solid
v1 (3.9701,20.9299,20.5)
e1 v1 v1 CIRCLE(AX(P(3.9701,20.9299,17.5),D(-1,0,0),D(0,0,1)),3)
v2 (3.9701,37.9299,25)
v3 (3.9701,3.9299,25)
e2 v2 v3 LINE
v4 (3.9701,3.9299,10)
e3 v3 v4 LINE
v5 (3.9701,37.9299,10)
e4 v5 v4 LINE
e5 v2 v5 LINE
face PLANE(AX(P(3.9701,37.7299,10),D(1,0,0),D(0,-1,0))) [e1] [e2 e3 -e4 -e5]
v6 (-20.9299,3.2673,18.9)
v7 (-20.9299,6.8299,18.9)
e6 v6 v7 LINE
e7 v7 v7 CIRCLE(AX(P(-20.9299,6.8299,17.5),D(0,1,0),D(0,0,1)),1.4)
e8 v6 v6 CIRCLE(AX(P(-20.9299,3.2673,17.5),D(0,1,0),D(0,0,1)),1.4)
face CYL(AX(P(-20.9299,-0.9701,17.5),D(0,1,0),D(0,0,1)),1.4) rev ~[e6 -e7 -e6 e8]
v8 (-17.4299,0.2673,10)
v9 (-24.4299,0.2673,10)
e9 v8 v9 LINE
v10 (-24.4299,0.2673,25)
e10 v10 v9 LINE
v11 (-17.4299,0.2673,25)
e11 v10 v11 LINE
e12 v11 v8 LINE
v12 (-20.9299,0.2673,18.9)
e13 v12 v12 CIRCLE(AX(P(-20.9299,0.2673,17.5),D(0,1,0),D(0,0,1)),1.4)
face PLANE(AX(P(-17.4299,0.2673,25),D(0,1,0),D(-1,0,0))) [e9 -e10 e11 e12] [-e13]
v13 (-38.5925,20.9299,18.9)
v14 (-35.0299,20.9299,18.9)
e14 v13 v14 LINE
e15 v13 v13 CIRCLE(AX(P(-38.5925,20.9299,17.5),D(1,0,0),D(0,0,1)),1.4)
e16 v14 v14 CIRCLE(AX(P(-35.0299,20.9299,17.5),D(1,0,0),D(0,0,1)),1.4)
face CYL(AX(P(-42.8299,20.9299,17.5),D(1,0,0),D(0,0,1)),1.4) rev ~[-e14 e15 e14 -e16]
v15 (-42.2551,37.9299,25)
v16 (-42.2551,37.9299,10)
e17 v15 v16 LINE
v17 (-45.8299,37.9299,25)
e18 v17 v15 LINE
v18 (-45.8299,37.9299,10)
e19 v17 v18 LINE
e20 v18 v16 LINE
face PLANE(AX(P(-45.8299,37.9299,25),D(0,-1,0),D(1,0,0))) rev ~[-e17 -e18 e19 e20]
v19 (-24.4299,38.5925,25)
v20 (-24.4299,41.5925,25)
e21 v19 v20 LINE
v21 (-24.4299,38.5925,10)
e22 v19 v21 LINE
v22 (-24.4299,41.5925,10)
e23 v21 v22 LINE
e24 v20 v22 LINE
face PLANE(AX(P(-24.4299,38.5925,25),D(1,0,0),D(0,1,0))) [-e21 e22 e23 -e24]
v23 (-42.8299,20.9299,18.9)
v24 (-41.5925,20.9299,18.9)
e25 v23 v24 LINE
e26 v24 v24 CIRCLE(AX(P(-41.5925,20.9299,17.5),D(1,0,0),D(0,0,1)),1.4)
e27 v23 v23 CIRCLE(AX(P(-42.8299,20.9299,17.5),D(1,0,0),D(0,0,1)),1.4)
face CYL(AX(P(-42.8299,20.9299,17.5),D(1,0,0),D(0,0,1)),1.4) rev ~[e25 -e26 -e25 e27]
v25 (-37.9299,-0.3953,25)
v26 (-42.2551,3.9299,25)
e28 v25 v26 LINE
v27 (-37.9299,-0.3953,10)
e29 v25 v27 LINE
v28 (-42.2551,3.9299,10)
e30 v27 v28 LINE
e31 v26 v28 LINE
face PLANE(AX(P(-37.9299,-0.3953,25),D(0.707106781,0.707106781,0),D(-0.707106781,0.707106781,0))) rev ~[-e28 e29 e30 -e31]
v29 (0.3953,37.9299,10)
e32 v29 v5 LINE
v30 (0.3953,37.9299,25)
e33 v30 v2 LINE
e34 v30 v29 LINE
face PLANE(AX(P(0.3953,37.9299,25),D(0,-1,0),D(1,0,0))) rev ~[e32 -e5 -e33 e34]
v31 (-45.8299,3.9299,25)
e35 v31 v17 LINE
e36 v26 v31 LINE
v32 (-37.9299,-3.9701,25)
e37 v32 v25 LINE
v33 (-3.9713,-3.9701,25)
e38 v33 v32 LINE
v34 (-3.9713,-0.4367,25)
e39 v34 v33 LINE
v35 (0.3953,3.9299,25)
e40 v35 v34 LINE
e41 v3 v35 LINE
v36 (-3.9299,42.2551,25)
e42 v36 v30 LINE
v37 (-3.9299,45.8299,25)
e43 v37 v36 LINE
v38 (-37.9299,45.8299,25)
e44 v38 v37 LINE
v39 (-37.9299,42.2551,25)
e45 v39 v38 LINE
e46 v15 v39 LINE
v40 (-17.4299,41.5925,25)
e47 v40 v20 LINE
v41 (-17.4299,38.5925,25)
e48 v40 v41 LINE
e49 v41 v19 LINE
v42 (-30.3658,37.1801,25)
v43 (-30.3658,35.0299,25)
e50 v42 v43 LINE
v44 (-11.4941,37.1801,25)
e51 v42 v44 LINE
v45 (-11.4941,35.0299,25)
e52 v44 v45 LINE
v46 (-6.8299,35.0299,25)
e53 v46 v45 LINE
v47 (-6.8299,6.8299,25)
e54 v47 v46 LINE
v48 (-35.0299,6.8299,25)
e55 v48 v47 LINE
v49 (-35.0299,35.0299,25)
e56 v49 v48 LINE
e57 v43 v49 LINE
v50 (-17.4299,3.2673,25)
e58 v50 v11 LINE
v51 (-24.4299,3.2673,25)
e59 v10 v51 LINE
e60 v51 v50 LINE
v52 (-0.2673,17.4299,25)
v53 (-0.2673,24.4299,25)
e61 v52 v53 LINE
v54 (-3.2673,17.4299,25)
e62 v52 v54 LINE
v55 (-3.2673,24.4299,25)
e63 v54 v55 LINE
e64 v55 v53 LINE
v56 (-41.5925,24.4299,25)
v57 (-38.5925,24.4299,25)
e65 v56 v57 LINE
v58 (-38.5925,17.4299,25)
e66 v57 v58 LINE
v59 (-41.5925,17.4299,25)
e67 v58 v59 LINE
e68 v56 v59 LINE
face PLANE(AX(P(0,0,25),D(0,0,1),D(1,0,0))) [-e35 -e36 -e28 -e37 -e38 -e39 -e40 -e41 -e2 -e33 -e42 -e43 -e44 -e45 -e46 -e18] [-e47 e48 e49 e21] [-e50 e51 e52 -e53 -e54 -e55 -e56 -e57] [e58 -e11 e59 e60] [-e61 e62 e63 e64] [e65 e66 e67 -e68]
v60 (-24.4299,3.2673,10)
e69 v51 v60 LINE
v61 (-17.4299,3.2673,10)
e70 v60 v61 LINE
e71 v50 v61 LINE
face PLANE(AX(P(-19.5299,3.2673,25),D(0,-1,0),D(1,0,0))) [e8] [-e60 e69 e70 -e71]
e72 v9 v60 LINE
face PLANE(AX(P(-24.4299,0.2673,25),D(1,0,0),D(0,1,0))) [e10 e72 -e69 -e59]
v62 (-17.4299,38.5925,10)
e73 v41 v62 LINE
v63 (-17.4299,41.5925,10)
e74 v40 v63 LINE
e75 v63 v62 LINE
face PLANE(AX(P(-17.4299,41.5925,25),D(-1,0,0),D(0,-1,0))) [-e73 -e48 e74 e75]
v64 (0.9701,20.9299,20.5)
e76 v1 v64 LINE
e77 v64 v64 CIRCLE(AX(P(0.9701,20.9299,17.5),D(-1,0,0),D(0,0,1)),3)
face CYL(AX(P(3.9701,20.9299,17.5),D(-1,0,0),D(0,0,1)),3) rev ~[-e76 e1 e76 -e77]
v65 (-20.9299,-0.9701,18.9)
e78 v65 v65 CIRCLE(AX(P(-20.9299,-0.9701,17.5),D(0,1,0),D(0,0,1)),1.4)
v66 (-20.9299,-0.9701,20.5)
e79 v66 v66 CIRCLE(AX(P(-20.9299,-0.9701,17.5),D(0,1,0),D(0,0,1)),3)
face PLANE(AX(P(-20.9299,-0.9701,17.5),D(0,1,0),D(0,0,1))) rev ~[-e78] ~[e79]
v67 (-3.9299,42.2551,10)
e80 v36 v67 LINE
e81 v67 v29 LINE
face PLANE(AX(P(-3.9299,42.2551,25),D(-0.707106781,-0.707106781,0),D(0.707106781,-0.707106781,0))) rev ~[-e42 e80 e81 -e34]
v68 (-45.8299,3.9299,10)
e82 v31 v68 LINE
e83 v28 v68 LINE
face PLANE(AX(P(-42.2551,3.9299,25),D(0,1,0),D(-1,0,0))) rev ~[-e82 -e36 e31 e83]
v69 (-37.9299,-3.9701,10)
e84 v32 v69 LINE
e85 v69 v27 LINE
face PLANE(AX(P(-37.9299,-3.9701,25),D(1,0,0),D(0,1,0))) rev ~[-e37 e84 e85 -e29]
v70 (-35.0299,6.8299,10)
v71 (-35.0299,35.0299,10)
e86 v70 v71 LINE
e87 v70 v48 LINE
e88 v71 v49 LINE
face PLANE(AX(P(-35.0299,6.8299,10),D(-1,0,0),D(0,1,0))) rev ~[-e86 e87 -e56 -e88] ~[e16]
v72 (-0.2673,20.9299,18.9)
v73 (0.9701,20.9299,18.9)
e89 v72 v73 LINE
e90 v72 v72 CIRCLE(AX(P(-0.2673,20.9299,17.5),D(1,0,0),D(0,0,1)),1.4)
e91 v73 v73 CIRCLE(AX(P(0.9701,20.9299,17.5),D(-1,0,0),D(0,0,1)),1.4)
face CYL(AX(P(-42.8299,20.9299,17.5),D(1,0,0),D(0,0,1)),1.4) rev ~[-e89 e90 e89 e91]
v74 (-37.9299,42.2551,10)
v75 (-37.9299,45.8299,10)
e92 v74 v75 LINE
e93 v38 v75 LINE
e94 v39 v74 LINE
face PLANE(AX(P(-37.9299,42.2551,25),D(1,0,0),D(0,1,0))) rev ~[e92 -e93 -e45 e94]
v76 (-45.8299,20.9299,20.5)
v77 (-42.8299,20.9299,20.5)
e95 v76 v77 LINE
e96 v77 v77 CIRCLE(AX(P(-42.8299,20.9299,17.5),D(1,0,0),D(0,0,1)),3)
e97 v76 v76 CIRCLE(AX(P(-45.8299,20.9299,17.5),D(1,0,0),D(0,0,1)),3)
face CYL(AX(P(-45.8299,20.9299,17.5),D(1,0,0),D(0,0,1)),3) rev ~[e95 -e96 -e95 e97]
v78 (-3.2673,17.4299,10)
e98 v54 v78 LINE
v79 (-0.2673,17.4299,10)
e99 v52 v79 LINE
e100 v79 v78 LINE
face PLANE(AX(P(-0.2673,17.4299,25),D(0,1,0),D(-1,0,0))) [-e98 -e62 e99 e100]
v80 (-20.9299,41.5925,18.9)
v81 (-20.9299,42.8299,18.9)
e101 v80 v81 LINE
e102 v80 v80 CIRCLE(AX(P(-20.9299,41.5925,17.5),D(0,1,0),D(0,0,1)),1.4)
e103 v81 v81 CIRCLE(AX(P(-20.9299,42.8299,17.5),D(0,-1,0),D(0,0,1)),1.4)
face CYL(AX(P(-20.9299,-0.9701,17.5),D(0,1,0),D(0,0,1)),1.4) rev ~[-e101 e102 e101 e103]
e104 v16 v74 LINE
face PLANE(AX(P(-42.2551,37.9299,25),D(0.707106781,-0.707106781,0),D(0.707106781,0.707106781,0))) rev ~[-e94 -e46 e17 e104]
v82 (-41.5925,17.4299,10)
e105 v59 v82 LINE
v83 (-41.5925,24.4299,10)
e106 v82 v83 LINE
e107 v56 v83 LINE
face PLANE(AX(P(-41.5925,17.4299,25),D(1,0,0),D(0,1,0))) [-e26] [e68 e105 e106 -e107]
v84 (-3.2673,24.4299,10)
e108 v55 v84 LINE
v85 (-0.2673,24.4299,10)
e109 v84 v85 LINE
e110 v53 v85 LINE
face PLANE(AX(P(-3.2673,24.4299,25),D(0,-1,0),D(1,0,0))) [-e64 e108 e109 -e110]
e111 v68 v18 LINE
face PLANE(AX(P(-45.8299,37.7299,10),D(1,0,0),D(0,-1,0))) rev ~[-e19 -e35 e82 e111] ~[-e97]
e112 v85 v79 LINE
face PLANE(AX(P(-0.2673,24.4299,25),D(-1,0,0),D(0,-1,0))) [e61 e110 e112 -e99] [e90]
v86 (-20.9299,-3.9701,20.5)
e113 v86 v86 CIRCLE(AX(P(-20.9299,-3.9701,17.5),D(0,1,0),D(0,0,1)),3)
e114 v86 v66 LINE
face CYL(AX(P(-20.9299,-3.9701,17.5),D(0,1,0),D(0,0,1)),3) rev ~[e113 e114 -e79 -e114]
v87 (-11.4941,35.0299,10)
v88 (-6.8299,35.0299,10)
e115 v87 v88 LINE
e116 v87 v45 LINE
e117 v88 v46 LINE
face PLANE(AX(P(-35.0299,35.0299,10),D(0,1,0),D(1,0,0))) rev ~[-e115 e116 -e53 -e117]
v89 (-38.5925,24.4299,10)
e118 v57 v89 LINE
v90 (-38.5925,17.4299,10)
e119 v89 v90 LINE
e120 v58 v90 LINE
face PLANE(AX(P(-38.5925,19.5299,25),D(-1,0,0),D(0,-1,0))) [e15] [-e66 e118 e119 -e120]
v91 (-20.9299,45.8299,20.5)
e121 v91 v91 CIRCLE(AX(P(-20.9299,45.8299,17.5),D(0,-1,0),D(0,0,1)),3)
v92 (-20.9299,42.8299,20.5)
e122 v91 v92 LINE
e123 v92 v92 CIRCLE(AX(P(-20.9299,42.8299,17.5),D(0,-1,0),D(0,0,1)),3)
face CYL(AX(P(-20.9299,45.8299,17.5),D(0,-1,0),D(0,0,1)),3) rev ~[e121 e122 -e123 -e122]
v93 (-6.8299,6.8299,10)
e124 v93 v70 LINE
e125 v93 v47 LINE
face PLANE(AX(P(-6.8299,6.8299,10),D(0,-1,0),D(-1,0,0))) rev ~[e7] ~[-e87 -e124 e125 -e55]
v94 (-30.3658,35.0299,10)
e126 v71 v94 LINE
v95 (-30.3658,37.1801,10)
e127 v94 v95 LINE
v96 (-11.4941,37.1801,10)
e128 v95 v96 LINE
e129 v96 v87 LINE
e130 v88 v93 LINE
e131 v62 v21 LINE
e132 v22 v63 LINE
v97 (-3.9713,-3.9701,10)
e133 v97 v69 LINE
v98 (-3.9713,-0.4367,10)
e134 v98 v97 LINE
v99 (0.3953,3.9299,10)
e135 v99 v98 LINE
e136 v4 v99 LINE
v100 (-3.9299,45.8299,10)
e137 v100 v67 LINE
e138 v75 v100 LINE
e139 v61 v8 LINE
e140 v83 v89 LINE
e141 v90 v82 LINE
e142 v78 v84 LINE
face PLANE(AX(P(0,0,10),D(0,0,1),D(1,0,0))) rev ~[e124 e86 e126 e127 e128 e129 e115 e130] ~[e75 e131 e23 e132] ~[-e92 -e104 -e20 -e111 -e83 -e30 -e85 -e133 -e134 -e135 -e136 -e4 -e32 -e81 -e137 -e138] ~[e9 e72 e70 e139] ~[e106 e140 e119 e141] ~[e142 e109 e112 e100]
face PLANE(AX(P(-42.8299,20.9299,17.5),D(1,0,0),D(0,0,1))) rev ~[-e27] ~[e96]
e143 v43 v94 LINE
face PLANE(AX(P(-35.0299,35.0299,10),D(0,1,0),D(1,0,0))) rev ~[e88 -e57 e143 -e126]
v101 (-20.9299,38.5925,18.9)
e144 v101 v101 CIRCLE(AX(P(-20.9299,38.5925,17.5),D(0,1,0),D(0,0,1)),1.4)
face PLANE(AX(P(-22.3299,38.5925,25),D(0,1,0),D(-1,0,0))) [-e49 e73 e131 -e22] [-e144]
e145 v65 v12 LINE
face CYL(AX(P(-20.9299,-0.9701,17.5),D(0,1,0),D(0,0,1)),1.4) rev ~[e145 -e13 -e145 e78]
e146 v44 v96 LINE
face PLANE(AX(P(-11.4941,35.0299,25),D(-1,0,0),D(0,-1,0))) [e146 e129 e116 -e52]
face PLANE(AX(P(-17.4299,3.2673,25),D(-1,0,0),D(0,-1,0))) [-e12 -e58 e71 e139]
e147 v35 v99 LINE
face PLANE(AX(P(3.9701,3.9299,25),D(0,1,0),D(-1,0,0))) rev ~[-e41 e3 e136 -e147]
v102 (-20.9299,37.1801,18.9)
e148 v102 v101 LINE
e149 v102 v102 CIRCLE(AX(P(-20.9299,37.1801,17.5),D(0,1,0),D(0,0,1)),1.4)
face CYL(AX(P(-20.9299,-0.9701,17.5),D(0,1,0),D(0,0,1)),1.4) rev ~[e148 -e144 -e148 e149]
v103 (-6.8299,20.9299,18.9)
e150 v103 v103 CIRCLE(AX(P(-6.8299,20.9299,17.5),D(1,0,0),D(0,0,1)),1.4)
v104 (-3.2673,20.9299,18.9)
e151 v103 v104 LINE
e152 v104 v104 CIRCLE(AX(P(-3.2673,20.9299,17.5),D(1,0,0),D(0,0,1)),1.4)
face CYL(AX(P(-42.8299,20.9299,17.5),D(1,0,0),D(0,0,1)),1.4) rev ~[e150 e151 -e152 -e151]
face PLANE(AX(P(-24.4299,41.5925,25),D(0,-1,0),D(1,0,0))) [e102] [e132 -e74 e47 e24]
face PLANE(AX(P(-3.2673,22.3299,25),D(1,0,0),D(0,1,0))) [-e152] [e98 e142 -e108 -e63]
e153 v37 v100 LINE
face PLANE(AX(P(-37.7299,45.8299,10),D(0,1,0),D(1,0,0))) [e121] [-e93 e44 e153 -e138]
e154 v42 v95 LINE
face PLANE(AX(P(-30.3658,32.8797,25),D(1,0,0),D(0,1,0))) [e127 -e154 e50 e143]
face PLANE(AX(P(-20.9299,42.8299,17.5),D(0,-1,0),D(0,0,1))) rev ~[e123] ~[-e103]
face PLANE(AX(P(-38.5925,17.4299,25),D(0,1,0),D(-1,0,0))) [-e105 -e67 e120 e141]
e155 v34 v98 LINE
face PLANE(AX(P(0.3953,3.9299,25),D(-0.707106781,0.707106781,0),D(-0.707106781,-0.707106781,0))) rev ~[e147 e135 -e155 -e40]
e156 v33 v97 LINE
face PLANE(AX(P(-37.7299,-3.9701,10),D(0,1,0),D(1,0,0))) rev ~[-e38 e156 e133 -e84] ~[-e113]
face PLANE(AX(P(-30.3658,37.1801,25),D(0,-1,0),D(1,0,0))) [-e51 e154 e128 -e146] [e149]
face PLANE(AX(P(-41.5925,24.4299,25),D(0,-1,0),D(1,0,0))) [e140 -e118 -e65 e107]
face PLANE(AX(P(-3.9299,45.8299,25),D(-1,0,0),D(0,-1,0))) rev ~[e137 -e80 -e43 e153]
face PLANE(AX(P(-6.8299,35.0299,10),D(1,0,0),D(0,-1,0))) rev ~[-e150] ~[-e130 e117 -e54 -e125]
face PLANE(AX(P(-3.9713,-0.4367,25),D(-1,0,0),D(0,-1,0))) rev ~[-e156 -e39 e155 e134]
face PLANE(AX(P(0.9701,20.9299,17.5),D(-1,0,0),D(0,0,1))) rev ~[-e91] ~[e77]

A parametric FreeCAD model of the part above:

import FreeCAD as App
import Part
import Sketcher
from FreeCAD import Vector

doc = App.newDocument("Part")
body = doc.addObject("PartDesign::Body", "Body")

sketch1 = body.newObject("Sketcher::SketchObject", "Sketch")
sketch1.AttachmentSupport = (doc.getObject("XY_Plane"), [""])
sketch1.MapMode = "FlatFace"
sketch1.AttachmentOffset = App.Placement(Vector(0, 0, 10), App.Rotation())
sketch1.addGeometry(Part.LineSegment(Vector(-4.171, -0.354, 0), Vector(0.312, 4.13, 0)), False)
sketch1.addGeometry(Part.LineSegment(Vector(0.312, 4.13, 0), Vector(3.97, 4.13, 0)), False)
sketch1.addGeometry(Part.LineSegment(Vector(3.97, 4.13, 0), Vector(3.97, 37.73, 0)), False)
sketch1.addGeometry(Part.LineSegment(Vector(3.97, 37.73, 0), Vector(0.312, 37.73, 0)), False)
sketch1.addGeometry(Part.LineSegment(Vector(0.312, 37.73, 0), Vector(-4.13, 42.172, 0)), False)
sketch1.addGeometry(Part.LineSegment(Vector(-4.13, 42.172, 0), Vector(-4.13, 45.83, 0)), False)
sketch1.addGeometry(Part.LineSegment(Vector(-4.13, 45.83, 0), Vector(-37.73, 45.83, 0)), False)
sketch1.addGeometry(Part.LineSegment(Vector(-37.73, 45.83, 0), Vector(-37.73, 42.172, 0)), False)
sketch1.addGeometry(Part.LineSegment(Vector(-37.73, 42.172, 0), Vector(-42.172, 37.73, 0)), False)
sketch1.addGeometry(Part.LineSegment(Vector(-42.172, 37.73, 0), Vector(-45.83, 37.73, 0)), False)
sketch1.addGeometry(Part.LineSegment(Vector(-45.83, 37.73, 0), Vector(-45.83, 4.13, 0)), False)
sketch1.addGeometry(Part.LineSegment(Vector(-45.83, 4.13, 0), Vector(-42.172, 4.13, 0)), False)
sketch1.addGeometry(Part.LineSegment(Vector(-42.172, 4.13, 0), Vector(-37.689, -0.354, 0)), False)
sketch1.addGeometry(Part.LineSegment(Vector(-37.689, -0.354, 0), Vector(-37.73, -0.354, 0)), False)
sketch1.addGeometry(Part.LineSegment(Vector(-37.73, -0.354, 0), Vector(-37.73, -3.97, 0)), False)
sketch1.addGeometry(Part.LineSegment(Vector(-37.73, -3.97, 0), Vector(-4.171, -3.97, 0)), False)
sketch1.addGeometry(Part.LineSegment(Vector(-4.171, -3.97, 0), Vector(-4.171, -0.354, 0)), False)
sketch1.addConstraint(Sketcher.Constraint("Coincident", 0, 2, 1, 1))
sketch1.addConstraint(Sketcher.Constraint("Coincident", 1, 2, 2, 1))
sketch1.addConstraint(Sketcher.Constraint("Coincident", 2, 2, 3, 1))
sketch1.addConstraint(Sketcher.Constraint("Coincident", 3, 2, 4, 1))
sketch1.addConstraint(Sketcher.Constraint("Coincident", 4, 2, 5, 1))
sketch1.addConstraint(Sketcher.Constraint("Coincident", 5, 2, 6, 1))
sketch1.addConstraint(Sketcher.Constraint("Coincident", 6, 2, 7, 1))
sketch1.addConstraint(Sketcher.Constraint("Coincident", 7, 2, 8, 1))
sketch1.addConstraint(Sketcher.Constraint("Coincident", 8, 2, 9, 1))
sketch1.addConstraint(Sketcher.Constraint("Coincident", 9, 2, 10, 1))
sketch1.addConstraint(Sketcher.Constraint("Coincident", 10, 2, 11, 1))
sketch1.addConstraint(Sketcher.Constraint("Coincident", 11, 2, 12, 1))
sketch1.addConstraint(Sketcher.Constraint("Coincident", 12, 2, 13, 1))
sketch1.addConstraint(Sketcher.Constraint("Coincident", 13, 2, 14, 1))
sketch1.addConstraint(Sketcher.Constraint("Coincident", 14, 2, 15, 1))
sketch1.addConstraint(Sketcher.Constraint("Coincident", 15, 2, 16, 1))
sketch1.addConstraint(Sketcher.Constraint("Coincident", 16, 2, 0, 1))
sketch1.addConstraint(Sketcher.Constraint("Horizontal", 1))
sketch1.addConstraint(Sketcher.Constraint("Vertical", 2))
sketch1.addConstraint(Sketcher.Constraint("Horizontal", 3))
sketch1.addConstraint(Sketcher.Constraint("Vertical", 5))
sketch1.addConstraint(Sketcher.Constraint("Horizontal", 6))
sketch1.addConstraint(Sketcher.Constraint("Vertical", 7))
sketch1.addConstraint(Sketcher.Constraint("Horizontal", 9))
sketch1.addConstraint(Sketcher.Constraint("Vertical", 10))
sketch1.addConstraint(Sketcher.Constraint("Horizontal", 11))
sketch1.addConstraint(Sketcher.Constraint("Horizontal", 13))
sketch1.addConstraint(Sketcher.Constraint("Vertical", 14))
sketch1.addConstraint(Sketcher.Constraint("Horizontal", 15))
sketch1.addConstraint(Sketcher.Constraint("Vertical", 16))
sketch1.addConstraint(Sketcher.Constraint("Perpendicular", 0, 4))
sketch1.addConstraint(Sketcher.Constraint("Perpendicular", 4, 8))
sketch1.addConstraint(Sketcher.Constraint("Perpendicular", 8, 12))
sketch1.addConstraint(Sketcher.Constraint("Horizontal", 4, 2, 7, 2))
sketch1.addConstraint(Sketcher.Constraint("Horizontal", 3, 2, 8, 2))
sketch1.addConstraint(Sketcher.Constraint("Horizontal", 1, 2, 10, 2))
sketch1.addConstraint(Sketcher.Constraint("Horizontal", 13, 2, 16, 2))
sketch1.addConstraint(Sketcher.Constraint("Vertical", 0, 2, 3, 2))
sketch1.addConstraint(Sketcher.Constraint("Vertical", 8, 2, 11, 2))
sketch1.addConstraint(Sketcher.Constraint("Vertical", 7, 2, 13, 2))
sketch1.addConstraint(Sketcher.Constraint("Equal", 3, 9))
sketch1.addConstraint(Sketcher.Constraint("Equal", 6, 2))
sketch1.addConstraint(Sketcher.Constraint("Equal", 11, 5))
sketch1.addConstraint(Sketcher.Constraint("Equal", 4, 8))
sketch1.addConstraint(Sketcher.Constraint("DistanceX", 6, 2, 6, 1, 33.6))
sketch1.addConstraint(Sketcher.Constraint("DistanceX", 4, 2, 2, 2, 8.1))
sketch1.addConstraint(Sketcher.Constraint("DistanceY", 14, 2, 11, 2, 8.1))
sketch1.addConstraint(Sketcher.Constraint("DistanceY", -1, 1, 0, 2, 4.13))
sketch1.addConstraint(Sketcher.Constraint("DistanceX", -1, 1, 1, 2, 3.97))
sketch1.addConstraint(Sketcher.Constraint("Distance", 0, 6.341))
sketch1.addConstraint(Sketcher.Constraint("DistanceX", 1, 1, 1, 2, 3.6577))
pad1 = body.newObject("PartDesign::Pad", "Pad")
pad1.Profile = sketch1
pad1.Length = 15

sketch2 = body.newObject("Sketcher::SketchObject", "Sketch001")
sketch2.AttachmentSupport = (doc.getObject("XY_Plane"), [""])
sketch2.MapMode = "FlatFace"
sketch2.AttachmentOffset = App.Placement(Vector(0, 0, 25), App.Rotation())
sketch2.addGeometry(Part.LineSegment(Vector(3.97, 3.93, 0), Vector(3.97, 4.13, 0)), False)
sketch2.addGeometry(Part.LineSegment(Vector(3.97, 4.13, 0), Vector(0.312, 4.13, 0)), False)
sketch2.addGeometry(Part.LineSegment(Vector(0.312, 4.13, 0), Vector(-4.171, -0.354, 0)), False)
sketch2.addGeometry(Part.LineSegment(Vector(-4.171, -0.354, 0), Vector(-4.171, -3.97, 0)), False)
sketch2.addGeometry(Part.LineSegment(Vector(-4.171, -3.97, 0), Vector(-3.971, -3.97, 0)), False)
sketch2.addGeometry(Part.LineSegment(Vector(-3.971, -3.97, 0), Vector(-3.971, -0.437, 0)), False)
sketch2.addGeometry(Part.LineSegment(Vector(-3.971, -0.437, 0), Vector(0.395, 3.93, 0)), False)
sketch2.addGeometry(Part.LineSegment(Vector(0.395, 3.93, 0), Vector(3.97, 3.93, 0)), False)
sketch2.addGeometry(Part.LineSegment(Vector(-3.93, 45.83, 0), Vector(-4.13, 45.83, 0)), False)
sketch2.addGeometry(Part.LineSegment(Vector(-4.13, 45.83, 0), Vector(-4.13, 42.172, 0)), False)
sketch2.addGeometry(Part.LineSegment(Vector(-4.13, 42.172, 0), Vector(0.312, 37.73, 0)), False)
sketch2.addGeometry(Part.LineSegment(Vector(0.312, 37.73, 0), Vector(3.97, 37.73, 0)), False)
sketch2.addGeometry(Part.LineSegment(Vector(3.97, 37.73, 0), Vector(3.97, 37.93, 0)), False)
sketch2.addGeometry(Part.LineSegment(Vector(3.97, 37.93, 0), Vector(0.395, 37.93, 0)), False)
sketch2.addGeometry(Part.LineSegment(Vector(0.395, 37.93, 0), Vector(-3.93, 42.255, 0)), False)
sketch2.addGeometry(Part.LineSegment(Vector(-3.93, 42.255, 0), Vector(-3.93, 45.83, 0)), False)
sketch2.addGeometry(Part.LineSegment(Vector(-42.172, 37.73, 0), Vector(-37.73, 42.172, 0)), False)
sketch2.addGeometry(Part.LineSegment(Vector(-37.73, 42.172, 0), Vector(-37.73, 45.83, 0)), False)
sketch2.addGeometry(Part.LineSegment(Vector(-37.73, 45.83, 0), Vector(-37.93, 45.83, 0)), False)
sketch2.addGeometry(Part.LineSegment(Vector(-37.93, 45.83, 0), Vector(-37.93, 42.255, 0)), False)
sketch2.addGeometry(Part.LineSegment(Vector(-37.93, 42.255, 0), Vector(-42.255, 37.93, 0)), False)
sketch2.addGeometry(Part.LineSegment(Vector(-42.255, 37.93, 0), Vector(-45.83, 37.93, 0)), False)
sketch2.addGeometry(Part.LineSegment(Vector(-45.83, 37.93, 0), Vector(-45.83, 37.73, 0)), False)
sketch2.addGeometry(Part.LineSegment(Vector(-45.83, 37.73, 0), Vector(-42.172, 37.73, 0)), False)
sketch2.addGeometry(Part.LineSegment(Vector(-42.172, 4.13, 0), Vector(-45.83, 4.13, 0)), False)
sketch2.addGeometry(Part.LineSegment(Vector(-45.83, 4.13, 0), Vector(-45.83, 3.93, 0)), False)
sketch2.addGeometry(Part.LineSegment(Vector(-45.83, 3.93, 0), Vector(-42.255, 3.93, 0)), False)
sketch2.addGeometry(Part.LineSegment(Vector(-42.255, 3.93, 0), Vector(-37.93, -0.395, 0)), False)
sketch2.addGeometry(Part.LineSegment(Vector(-37.93, -0.395, 0), Vector(-37.93, -3.97, 0)), False)
sketch2.addGeometry(Part.LineSegment(Vector(-37.93, -3.97, 0), Vector(-37.73, -3.97, 0)), False)
sketch2.addGeometry(Part.LineSegment(Vector(-37.73, -3.97, 0), Vector(-37.73, -0.354, 0)), False)
sketch2.addGeometry(Part.LineSegment(Vector(-37.73, -0.354, 0), Vector(-37.688, -0.354, 0)), False)
sketch2.addGeometry(Part.LineSegment(Vector(-37.688, -0.354, 0), Vector(-42.172, 4.13, 0)), False)
sketch2.addConstraint(Sketcher.Constraint("Coincident", 0, 2, 1, 1))
sketch2.addConstraint(Sketcher.Constraint("Coincident", 1, 2, 2, 1))
sketch2.addConstraint(Sketcher.Constraint("Coincident", 2, 2, 3, 1))
sketch2.addConstraint(Sketcher.Constraint("Coincident", 3, 2, 4, 1))
sketch2.addConstraint(Sketcher.Constraint("Coincident", 4, 2, 5, 1))
sketch2.addConstraint(Sketcher.Constraint("Coincident", 5, 2, 6, 1))
sketch2.addConstraint(Sketcher.Constraint("Coincident", 6, 2, 7, 1))
sketch2.addConstraint(Sketcher.Constraint("Coincident", 7, 2, 0, 1))
sketch2.addConstraint(Sketcher.Constraint("Coincident", 8, 2, 9, 1))
sketch2.addConstraint(Sketcher.Constraint("Coincident", 9, 2, 10, 1))
sketch2.addConstraint(Sketcher.Constraint("Coincident", 10, 2, 11, 1))
sketch2.addConstraint(Sketcher.Constraint("Coincident", 11, 2, 12, 1))
sketch2.addConstraint(Sketcher.Constraint("Coincident", 12, 2, 13, 1))
sketch2.addConstraint(Sketcher.Constraint("Coincident", 13, 2, 14, 1))
sketch2.addConstraint(Sketcher.Constraint("Coincident", 14, 2, 15, 1))
sketch2.addConstraint(Sketcher.Constraint("Coincident", 15, 2, 8, 1))
sketch2.addConstraint(Sketcher.Constraint("Coincident", 16, 2, 17, 1))
sketch2.addConstraint(Sketcher.Constraint("Coincident", 17, 2, 18, 1))
sketch2.addConstraint(Sketcher.Constraint("Coincident", 18, 2, 19, 1))
sketch2.addConstraint(Sketcher.Constraint("Coincident", 19, 2, 20, 1))
sketch2.addConstraint(Sketcher.Constraint("Coincident", 20, 2, 21, 1))
sketch2.addConstraint(Sketcher.Constraint("Coincident", 21, 2, 22, 1))
sketch2.addConstraint(Sketcher.Constraint("Coincident", 22, 2, 23, 1))
sketch2.addConstraint(Sketcher.Constraint("Coincident", 23, 2, 16, 1))
sketch2.addConstraint(Sketcher.Constraint("Coincident", 24, 2, 25, 1))
sketch2.addConstraint(Sketcher.Constraint("Coincident", 25, 2, 26, 1))
sketch2.addConstraint(Sketcher.Constraint("Coincident", 26, 2, 27, 1))
sketch2.addConstraint(Sketcher.Constraint("Coincident", 27, 2, 28, 1))
sketch2.addConstraint(Sketcher.Constraint("Coincident", 28, 2, 29, 1))
sketch2.addConstraint(Sketcher.Constraint("Coincident", 29, 2, 30, 1))
sketch2.addConstraint(Sketcher.Constraint("Coincident", 30, 2, 31, 1))
sketch2.addConstraint(Sketcher.Constraint("Coincident", 31, 2, 32, 1))
sketch2.addConstraint(Sketcher.Constraint("Coincident", 32, 2, 24, 1))
sketch2.addConstraint(Sketcher.Constraint("Vertical", 0))
sketch2.addConstraint(Sketcher.Constraint("Horizontal", 1))
sketch2.addConstraint(Sketcher.Constraint("Vertical", 3))
sketch2.addConstraint(Sketcher.Constraint("Horizontal", 4))
sketch2.addConstraint(Sketcher.Constraint("Vertical", 5))
sketch2.addConstraint(Sketcher.Constraint("Horizontal", 7))
sketch2.addConstraint(Sketcher.Constraint("Horizontal", 8))
sketch2.addConstraint(Sketcher.Constraint("Vertical", 9))
sketch2.addConstraint(Sketcher.Constraint("Horizontal", 11))
sketch2.addConstraint(Sketcher.Constraint("Vertical", 12))
sketch2.addConstraint(Sketcher.Constraint("Horizontal", 13))
sketch2.addConstraint(Sketcher.Constraint("Vertical", 15))
sketch2.addConstraint(Sketcher.Constraint("Vertical", 17))
sketch2.addConstraint(Sketcher.Constraint("Horizontal", 18))
sketch2.addConstraint(Sketcher.Constraint("Vertical", 19))
sketch2.addConstraint(Sketcher.Constraint("Horizontal", 21))
sketch2.addConstraint(Sketcher.Constraint("Vertical", 22))
sketch2.addConstraint(Sketcher.Constraint("Horizontal", 23))
sketch2.addConstraint(Sketcher.Constraint("Horizontal", 24))
sketch2.addConstraint(Sketcher.Constraint("Vertical", 25))
sketch2.addConstraint(Sketcher.Constraint("Horizontal", 26))
sketch2.addConstraint(Sketcher.Constraint("Vertical", 28))
sketch2.addConstraint(Sketcher.Constraint("Horizontal", 29))
sketch2.addConstraint(Sketcher.Constraint("Vertical", 30))
sketch2.addConstraint(Sketcher.Constraint("Horizontal", 31))
sketch2.addConstraint(Sketcher.Constraint("Parallel", 2, 6))
sketch2.addConstraint(Sketcher.Constraint("Perpendicular", 6, 10))
sketch2.addConstraint(Sketcher.Constraint("Parallel", 10, 14))
sketch2.addConstraint(Sketcher.Constraint("Perpendicular", 14, 16))
sketch2.addConstraint(Sketcher.Constraint("Parallel", 16, 20))
sketch2.addConstraint(Sketcher.Constraint("Perpendicular", 20, 27))
sketch2.addConstraint(Sketcher.Constraint("Parallel", 27, 32))
sketch2.addConstraint(Sketcher.Constraint("Horizontal", 9, 2, 16, 2))
sketch2.addConstraint(Sketcher.Constraint("Horizontal", 15, 2, 17, 2))
sketch2.addConstraint(Sketcher.Constraint("Horizontal", 14, 2, 19, 2))
sketch2.addConstraint(Sketcher.Constraint("Horizontal", 13, 2, 20, 2))
sketch2.addConstraint(Sketcher.Constraint("Horizontal", 11, 2, 22, 2))
sketch2.addConstraint(Sketcher.Constraint("Horizontal", 1, 2, 24, 2))
sketch2.addConstraint(Sketcher.Constraint("Horizontal", 7, 2, 25, 2))
sketch2.addConstraint(Sketcher.Constraint("Horizontal", 4, 2, 28, 2))
sketch2.addConstraint(Sketcher.Constraint("Horizontal", 2, 2, 30, 2))
sketch2.addConstraint(Sketcher.Constraint("Vertical", 1, 2, 10, 2))
sketch2.addConstraint(Sketcher.Constraint("Vertical", 7, 2, 11, 2))
sketch2.addConstraint(Sketcher.Constraint("Vertical", 6, 2, 13, 2))
sketch2.addConstraint(Sketcher.Constraint("Vertical", 22, 2, 24, 2))
sketch2.addConstraint(Sketcher.Constraint("Vertical", 20, 2, 26, 2))
sketch2.addConstraint(Sketcher.Constraint("Vertical", 19, 2, 27, 2))
sketch2.addConstraint(Sketcher.Constraint("Vertical", 17, 2, 29, 2))
sketch2.addConstraint(Sketcher.Constraint("Vertical", 23, 2, 32, 2))
sketch2.addConstraint(Sketcher.Constraint("Equal", 4, 8))
sketch2.addConstraint(Sketcher.Constraint("Equal", 8, 18))
sketch2.addConstraint(Sketcher.Constraint("Equal", 13, 21))
sketch2.addConstraint(Sketcher.Constraint("Equal", 11, 23))
sketch2.addConstraint(Sketcher.Constraint("Equal", 29, 0))
sketch2.addConstraint(Sketcher.Constraint("Equal", 24, 9))
sketch2.addConstraint(Sketcher.Constraint("Equal", 0, 12))
sketch2.addConstraint(Sketcher.Constraint("Equal", 19, 28))
sketch2.addConstraint(Sketcher.Constraint("DistanceX", 4, 1, 4, 2, 0.2))
sketch2.addConstraint(Sketcher.Constraint("DistanceX", 18, 2, 15, 2, 34.0))
sketch2.addConstraint(Sketcher.Constraint("DistanceY", 25, 2, 21, 2, 34.0))
sketch2.addConstraint(Sketcher.Constraint("DistanceY", 3, 2, 1, 2, 8.1))
sketch2.addConstraint(Sketcher.Constraint("DistanceX", -1, 1, 0, 2, 3.97))
sketch2.addConstraint(Sketcher.Constraint("DistanceY", -1, 1, 0, 2, 4.13))
sketch2.addConstraint(Sketcher.Constraint("Distance", 2, 6.341))
sketch2.addConstraint(Sketcher.Constraint("DistanceX", 1, 2, 1, 1, 3.6577))
sketch2.addConstraint(Sketcher.Constraint("DistanceX", 7, 1, 7, 2, 3.5748))
pad2 = body.newObject("PartDesign::Pad", "Pad001")
pad2.Profile = sketch2
pad2.Length = 15
pad2.Reversed = True

sketch3 = body.newObject("Sketcher::SketchObject", "Sketch002")
sketch3.AttachmentSupport = (doc.getObject("XY_Plane"), [""])
sketch3.MapMode = "FlatFace"
sketch3.AttachmentOffset = App.Placement(Vector(0, 0, 10), App.Rotation())
sketch3.addGeometry(Part.LineSegment(Vector(-35, 7, 0), Vector(-35, 35, 0)), False)
sketch3.addGeometry(Part.LineSegment(Vector(-35, 35, 0), Vector(-7, 35, 0)), False)
sketch3.addGeometry(Part.LineSegment(Vector(-7, 35, 0), Vector(-7, 7, 0)), False)
sketch3.addGeometry(Part.LineSegment(Vector(-7, 7, 0), Vector(-35, 7, 0)), False)
sketch3.addConstraint(Sketcher.Constraint("Coincident", 0, 2, 1, 1))
sketch3.addConstraint(Sketcher.Constraint("Coincident", 1, 2, 2, 1))
sketch3.addConstraint(Sketcher.Constraint("Coincident", 2, 2, 3, 1))
sketch3.addConstraint(Sketcher.Constraint("Coincident", 3, 2, 0, 1))
sketch3.addConstraint(Sketcher.Constraint("Vertical", 0))
sketch3.addConstraint(Sketcher.Constraint("Horizontal", 1))
sketch3.addConstraint(Sketcher.Constraint("Vertical", 2))
sketch3.addConstraint(Sketcher.Constraint("Horizontal", 3))
sketch3.addConstraint(Sketcher.Constraint("Equal", 3, 0))
sketch3.addConstraint(Sketcher.Constraint("DistanceX", 1, 1, 1, 2, 28.2))
sketch3.addConstraint(Sketcher.Constraint("DistanceX", 0, 2, -1, 1, 35.03))
sketch3.addConstraint(Sketcher.Constraint("DistanceY", -1, 1, 0, 2, 35.03))
pocket1 = body.newObject("PartDesign::Pocket", "Pocket")
pocket1.Profile = sketch3
pocket1.Type = "ThroughAll"
pocket1.Reversed = True

sketch4 = body.newObject("Sketcher::SketchObject", "Sketch003")
sketch4.AttachmentSupport = (doc.getObject("YZ_Plane"), [""])
sketch4.MapMode = "FlatFace"
sketch4.AttachmentOffset = App.Placement(Vector(0, 0, -45.8299), App.Rotation())
sketch4.addGeometry(Part.Circle(Vector(20.9, 17.5, 0), Vector(0, 0, 1), 1.4), False)
sketch4.addConstraint(Sketcher.Constraint("Diameter", 0, 2.8))
sketch4.addConstraint(Sketcher.Constraint("DistanceY", -1, 1, 0, 3, 17.5))
sketch4.addConstraint(Sketcher.Constraint("DistanceX", -1, 1, 0, 3, 20.93))
doc.recompute()
hole = body.newObject("PartDesign::Hole", "Hole")
hole.Profile = sketch4
hole.ThreadType = "None"
hole.Diameter = 2.8
hole.DepthType = "ThroughAll"
hole.HoleCutType = "Counterbore"
hole.HoleCutDiameter = 6
hole.HoleCutDepth = 3
hole.Reversed = True
doc.recompute()

datumline = body.newObject("PartDesign::Line", "DatumLine")
datumline.Placement = App.Placement(Vector(-20.9299, 20.9299, 0), App.Rotation(Vector(0, 0, 1), Vector(0, 0, 1)))
polarpattern = body.newObject("PartDesign::PolarPattern", "PolarPattern")
polarpattern.Originals = [hole]
polarpattern.Axis = (datumline, [""])
polarpattern.Angle = 360
polarpattern.Occurrences = 4
body.Tip = polarpattern

sketch5 = body.newObject("Sketcher::SketchObject", "Sketch004")
sketch5.AttachmentSupport = (doc.getObject("XY_Plane"), [""])
sketch5.MapMode = "FlatFace"
sketch5.AttachmentOffset = App.Placement(Vector(0, 0, 25), App.Rotation())
sketch5.addGeometry(Part.LineSegment(Vector(-38.6, 17.4, 0), Vector(-38.6, 24.4, 0)), False)
sketch5.addGeometry(Part.LineSegment(Vector(-38.6, 24.4, 0), Vector(-41.6, 24.4, 0)), False)
sketch5.addGeometry(Part.LineSegment(Vector(-41.6, 24.4, 0), Vector(-41.6, 17.4, 0)), False)
sketch5.addGeometry(Part.LineSegment(Vector(-41.6, 17.4, 0), Vector(-38.6, 17.4, 0)), False)
sketch5.addConstraint(Sketcher.Constraint("Coincident", 0, 2, 1, 1))
sketch5.addConstraint(Sketcher.Constraint("Coincident", 1, 2, 2, 1))
sketch5.addConstraint(Sketcher.Constraint("Coincident", 2, 2, 3, 1))
sketch5.addConstraint(Sketcher.Constraint("Coincident", 3, 2, 0, 1))
sketch5.addConstraint(Sketcher.Constraint("Vertical", 0))
sketch5.addConstraint(Sketcher.Constraint("Horizontal", 1))
sketch5.addConstraint(Sketcher.Constraint("Vertical", 2))
sketch5.addConstraint(Sketcher.Constraint("Horizontal", 3))
sketch5.addConstraint(Sketcher.Constraint("DistanceX", 1, 2, 1, 1, 3.0))
sketch5.addConstraint(Sketcher.Constraint("DistanceY", 0, 1, 0, 2, 7.0))
sketch5.addConstraint(Sketcher.Constraint("DistanceY", -1, 1, 0, 2, 24.43))
sketch5.addConstraint(Sketcher.Constraint("DistanceX", 0, 2, -1, 1, 38.5925))
pocket2 = body.newObject("PartDesign::Pocket", "Pocket001")
pocket2.Profile = sketch5
pocket2.Type = "ThroughAll"
doc.recompute()

datumline2 = body.newObject("PartDesign::Line", "DatumLine001")
datumline2.Placement = App.Placement(Vector(-20.9299, 20.9299, 0), App.Rotation(Vector(0, 0, 1), Vector(0, 0, 1)))
polarpattern2 = body.newObject("PartDesign::PolarPattern", "PolarPattern001")
polarpattern2.Originals = [pocket2]
polarpattern2.Axis = (datumline2, [""])
polarpattern2.Angle = 360
polarpattern2.Occurrences = 4
body.Tip = polarpattern2

sketch6 = body.newObject("Sketcher::SketchObject", "Sketch005")
sketch6.AttachmentSupport = (doc.getObject("XY_Plane"), [""])
sketch6.MapMode = "FlatFace"
sketch6.AttachmentOffset = App.Placement(Vector(0, 0, 25), App.Rotation())
sketch6.addGeometry(Part.LineSegment(Vector(-11.5, 32.9, 0), Vector(-11.5, 37.2, 0)), False)
sketch6.addGeometry(Part.LineSegment(Vector(-11.5, 37.2, 0), Vector(-30.4, 37.2, 0)), False)
sketch6.addGeometry(Part.LineSegment(Vector(-30.4, 37.2, 0), Vector(-30.4, 32.9, 0)), False)
sketch6.addGeometry(Part.LineSegment(Vector(-30.4, 32.9, 0), Vector(-11.5, 32.9, 0)), False)
sketch6.addConstraint(Sketcher.Constraint("Coincident", 0, 2, 1, 1))
sketch6.addConstraint(Sketcher.Constraint("Coincident", 1, 2, 2, 1))
sketch6.addConstraint(Sketcher.Constraint("Coincident", 2, 2, 3, 1))
sketch6.addConstraint(Sketcher.Constraint("Coincident", 3, 2, 0, 1))
sketch6.addConstraint(Sketcher.Constraint("Vertical", 0))
sketch6.addConstraint(Sketcher.Constraint("Horizontal", 1))
sketch6.addConstraint(Sketcher.Constraint("Vertical", 2))
sketch6.addConstraint(Sketcher.Constraint("Horizontal", 3))
sketch6.addConstraint(Sketcher.Constraint("DistanceY", -1, 1, 0, 2, 37.18))
sketch6.addConstraint(Sketcher.Constraint("DistanceX", 1, 2, 1, 1, 18.8717))
sketch6.addConstraint(Sketcher.Constraint("DistanceY", 0, 1, 0, 2, 4.3004))
sketch6.addConstraint(Sketcher.Constraint("DistanceX", 0, 2, -1, 1, 11.494))
pocket3 = body.newObject("PartDesign::Pocket", "Pocket002")
pocket3.Profile = sketch6
pocket3.Type = "ThroughAll"

doc.recompute()
